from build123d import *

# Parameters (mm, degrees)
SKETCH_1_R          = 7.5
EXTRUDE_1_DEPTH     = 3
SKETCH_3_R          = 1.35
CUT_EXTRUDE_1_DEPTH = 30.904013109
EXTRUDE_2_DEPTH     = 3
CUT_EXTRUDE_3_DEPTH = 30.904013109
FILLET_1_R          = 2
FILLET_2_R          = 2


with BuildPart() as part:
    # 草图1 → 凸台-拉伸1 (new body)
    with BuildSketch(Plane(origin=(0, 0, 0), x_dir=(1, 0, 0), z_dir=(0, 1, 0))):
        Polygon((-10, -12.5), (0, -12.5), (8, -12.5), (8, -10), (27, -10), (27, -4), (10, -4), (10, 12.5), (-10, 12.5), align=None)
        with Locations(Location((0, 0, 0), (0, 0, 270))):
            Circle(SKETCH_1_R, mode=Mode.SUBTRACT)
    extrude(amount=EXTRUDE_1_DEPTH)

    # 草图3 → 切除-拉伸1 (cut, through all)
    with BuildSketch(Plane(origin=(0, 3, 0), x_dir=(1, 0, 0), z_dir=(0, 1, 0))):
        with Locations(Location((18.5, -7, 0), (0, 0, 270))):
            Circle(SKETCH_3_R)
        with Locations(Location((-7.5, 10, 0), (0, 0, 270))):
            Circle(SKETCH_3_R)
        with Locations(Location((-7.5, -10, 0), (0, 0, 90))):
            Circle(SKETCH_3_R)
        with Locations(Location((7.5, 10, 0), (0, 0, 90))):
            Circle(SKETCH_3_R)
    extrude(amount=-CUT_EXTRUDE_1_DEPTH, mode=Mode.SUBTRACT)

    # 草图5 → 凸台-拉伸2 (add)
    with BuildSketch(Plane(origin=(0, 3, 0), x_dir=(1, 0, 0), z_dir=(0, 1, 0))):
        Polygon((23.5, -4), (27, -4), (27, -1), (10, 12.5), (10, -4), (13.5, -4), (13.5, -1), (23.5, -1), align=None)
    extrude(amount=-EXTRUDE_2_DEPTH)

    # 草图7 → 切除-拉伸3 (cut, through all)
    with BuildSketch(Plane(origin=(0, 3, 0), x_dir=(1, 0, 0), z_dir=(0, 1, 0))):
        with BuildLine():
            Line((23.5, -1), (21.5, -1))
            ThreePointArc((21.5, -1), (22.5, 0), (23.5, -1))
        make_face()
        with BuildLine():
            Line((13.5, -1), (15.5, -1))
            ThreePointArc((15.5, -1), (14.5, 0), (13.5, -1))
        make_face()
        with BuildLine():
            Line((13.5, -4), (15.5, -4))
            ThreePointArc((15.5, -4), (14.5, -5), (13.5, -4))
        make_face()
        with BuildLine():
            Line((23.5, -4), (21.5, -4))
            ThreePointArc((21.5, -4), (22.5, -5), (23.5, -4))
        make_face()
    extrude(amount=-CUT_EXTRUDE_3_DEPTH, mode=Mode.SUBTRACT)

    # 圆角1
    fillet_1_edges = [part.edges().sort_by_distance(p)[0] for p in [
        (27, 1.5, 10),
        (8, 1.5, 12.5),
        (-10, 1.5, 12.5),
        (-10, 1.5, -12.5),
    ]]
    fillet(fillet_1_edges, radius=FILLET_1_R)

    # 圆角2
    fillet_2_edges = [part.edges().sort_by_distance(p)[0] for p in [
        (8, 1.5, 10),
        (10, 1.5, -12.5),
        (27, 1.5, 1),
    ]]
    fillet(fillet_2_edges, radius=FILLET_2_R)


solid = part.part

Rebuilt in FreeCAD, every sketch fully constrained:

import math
import FreeCAD as App
import Part
import Sketcher


def edges_at(feature, points):
    """Names of the edges that pass closest to the given points."""
    edges = feature.Shape.Edges
    near = lambda p: min(range(len(edges)), key=lambda i: edges[i].distToShape(Part.Vertex(*p))[0])
    return sorted({f"Edge{near(p) + 1}" for p in points})


def add_polygon(sketch, points):
    """Adds a closed chain of lines whose ends are joined by coincident constraints."""
    first, n = sketch.GeometryCount, len(points)
    for a, b in zip(points, points[1:] + points[:1]):
        sketch.addGeometry(Part.LineSegment(App.Vector(*a, 0), App.Vector(*b, 0)), False)
    for i in range(n):
        sketch.addConstraint(Sketcher.Constraint("Coincident", first + i, 2, first + (i + 1) % n, 1))

doc = App.newDocument("Part")
body = doc.addObject("PartDesign::Body", "Body")

# Sketch on XZ plane
sketch1 = body.newObject("Sketcher::SketchObject", "Sketch")
sketch1.AttachmentSupport = (doc.getObject("XZ_Plane"), [""])
sketch1.MapMode = "FlatFace"
add_polygon(sketch1, [(-10, 12.5), (8, 12.5), (8, 10), (27, 10), (27, 4), (10, 4), (10, -12.5), (-10, -12.5)])  # lines 0-7
sketch1.addGeometry(Part.Circle(App.Vector(0, 0, 0), App.Vector(0, 0, 1), 7.5), False)  # 8
sketch1.addConstraint(Sketcher.Constraint("Horizontal", 0))
sketch1.addConstraint(Sketcher.Constraint("Vertical", 1))
sketch1.addConstraint(Sketcher.Constraint("Horizontal", 2))
sketch1.addConstraint(Sketcher.Constraint("Vertical", 3))
sketch1.addConstraint(Sketcher.Constraint("Horizontal", 4))
sketch1.addConstraint(Sketcher.Constraint("Vertical", 5))
sketch1.addConstraint(Sketcher.Constraint("Horizontal", 6))
sketch1.addConstraint(Sketcher.Constraint("Vertical", 7))
sketch1.addConstraint(Sketcher.Constraint("Coincident", 8, 3, -1, 1))
sketch1.addConstraint(Sketcher.Constraint("Symmetric", 5, 2, 7, 2, -1, 1))
sketch1.addConstraint(Sketcher.Constraint("Diameter", 8, 15.0))
sketch1.addConstraint(Sketcher.Constraint("DistanceX", 0, 1, 0, 2, 18.0))
sketch1.addConstraint(Sketcher.Constraint("DistanceX", 2, 1, 2, 2, 19.0))
sketch1.addConstraint(Sketcher.Constraint("DistanceX", 4, 2, 4, 1, 17.0))
sketch1.addConstraint(Sketcher.Constraint("DistanceY", 3, 2, 3, 1, 6.0))
sketch1.addConstraint(Sketcher.Constraint("DistanceY", 7, 1, 7, 2, 25.0))
sketch1.addConstraint(Sketcher.Constraint("DistanceY", 1, 2, 1, 1, 2.5))
pad1 = body.newObject("PartDesign::Pad", "Pad")
pad1.Profile = sketch1
pad1.Length = 3
pad1.Reversed = True

# Sketch on XZ plane
sketch2 = body.newObject("Sketcher::SketchObject", "Sketch001")
sketch2.AttachmentSupport = (doc.getObject("XZ_Plane"), [""])
sketch2.MapMode = "FlatFace"
sketch2.AttachmentOffset = App.Placement(App.Vector(0, 0, -3), App.Rotation())
sketch2.addGeometry(Part.Circle(App.Vector(18.5, 7, 0), App.Vector(0, 0, 1), 1.4), False)
sketch2.addGeometry(Part.Circle(App.Vector(-7.5, -10, 0), App.Vector(0, 0, 1), 1.4), False)
sketch2.addGeometry(Part.Circle(App.Vector(-7.5, 10, 0), App.Vector(0, 0, 1), 1.4), False)
sketch2.addGeometry(Part.Circle(App.Vector(7.5, -10, 0), App.Vector(0, 0, 1), 1.4), False)
sketch2.addConstraint(Sketcher.Constraint("Equal", 0, 1))
sketch2.addConstraint(Sketcher.Constraint("Equal", 1, 2))
sketch2.addConstraint(Sketcher.Constraint("Equal", 2, 3))
sketch2.addConstraint(Sketcher.Constraint("Symmetric", 2, 3, 3, 3, -1, 1))
sketch2.addConstraint(Sketcher.Constraint("Symmetric", 1, 3, 3, 3, -2))
sketch2.addConstraint(Sketcher.Constraint("Diameter", 0, 2.7))
sketch2.addConstraint(Sketcher.Constraint("DistanceY", -1, 1, 0, 3, 7.0))
sketch2.addConstraint(Sketcher.Constraint("DistanceY", 1, 3, -1, 1, 10.0))
sketch2.addConstraint(Sketcher.Constraint("DistanceX", 1, 3, 0, 3, 26.0))
sketch2.addConstraint(Sketcher.Constraint("DistanceX", 1, 3, 3, 3, 15.0))
pocket1 = body.newObject("PartDesign::Pocket", "Pocket")
pocket1.Profile = sketch2
pocket1.Type = "ThroughAll"
pocket1.Reversed = True

# Sketch on XZ plane
sketch3 = body.newObject("Sketcher::SketchObject", "Sketch002")
sketch3.AttachmentSupport = (doc.getObject("XZ_Plane"), [""])
sketch3.MapMode = "FlatFace"
sketch3.AttachmentOffset = App.Placement(App.Vector(0, 0, -3), App.Rotation())
add_polygon(sketch3, [(23.5, 4), (27, 4), (27, 1), (10, -12.5), (10, 4), (13.5, 4), (13.5, 1), (23.5, 1)])  # lines 0-7
sketch3.addConstraint(Sketcher.Constraint("Horizontal", 0))
sketch3.addConstraint(Sketcher.Constraint("Vertical", 1))
sketch3.addConstraint(Sketcher.Constraint("Vertical", 3))
sketch3.addConstraint(Sketcher.Constraint("Horizontal", 4))
sketch3.addConstraint(Sketcher.Constraint("Vertical", 5))
sketch3.addConstraint(Sketcher.Constraint("Horizontal", 6))
sketch3.addConstraint(Sketcher.Constraint("Vertical", 7))
sketch3.addConstraint(Sketcher.Constraint("Horizontal", 0, 2, 3, 2))
sketch3.addConstraint(Sketcher.Constraint("Horizontal", 1, 2, 5, 2))
sketch3.addConstraint(Sketcher.Constraint("Equal", 0, 4))
sketch3.addConstraint(Sketcher.Constraint("DistanceX", 6, 1, 6, 2, 10.0))
sketch3.addConstraint(Sketcher.Constraint("DistanceY", 1, 2, 1, 1, 3.0))
sketch3.addConstraint(Sketcher.Constraint("DistanceX", 0, 1, 0, 2, 3.5))
sketch3.addConstraint(Sketcher.Constraint("DistanceY", 3, 1, 3, 2, 16.5))
sketch3.addConstraint(Sketcher.Constraint("DistanceX", -1, 1, 0, 2, 27.0))
sketch3.addConstraint(Sketcher.Constraint("DistanceY", -1, 1, 0, 2, 4.0))
pad2 = body.newObject("PartDesign::Pad", "Pad001")
pad2.Profile = sketch3
pad2.Length = 3

# Sketch on XZ plane
sketch4 = body.newObject("Sketcher::SketchObject", "Sketch003")
sketch4.AttachmentSupport = (doc.getObject("XZ_Plane"), [""])
sketch4.MapMode = "FlatFace"
sketch4.AttachmentOffset = App.Placement(App.Vector(0, 0, -3), App.Rotation())
sketch4.addGeometry(Part.LineSegment(App.Vector(21.5, 1, 0), App.Vector(23.5, 1, 0)), False)
sketch4.addGeometry(Part.ArcOfCircle(Part.Circle(App.Vector(22.5, 1, 0), App.Vector(0, 0, 1), 1), math.radians(180), math.radians(360)), False)
sketch4.addGeometry(Part.LineSegment(App.Vector(13.5, 1, 0), App.Vector(15.5, 1, 0)), False)
sketch4.addGeometry(Part.ArcOfCircle(Part.Circle(App.Vector(14.5, 1, 0), App.Vector(0, 0, 1), 1), math.radians(180), math.radians(360)), False)
sketch4.addGeometry(Part.LineSegment(App.Vector(15.5, 4, 0), App.Vector(13.5, 4, 0)), False)
sketch4.addGeometry(Part.ArcOfCircle(Part.Circle(App.Vector(14.5, 4, 0), App.Vector(0, 0, 1), 1), math.radians(0), math.radians(180)), False)
sketch4.addGeometry(Part.LineSegment(App.Vector(23.5, 4, 0), App.Vector(21.5, 4, 0)), False)
sketch4.addGeometry(Part.ArcOfCircle(Part.Circle(App.Vector(22.5, 4, 0), App.Vector(0, 0, 1), 1), math.radians(0), math.radians(180)), False)
sketch4.addConstraint(Sketcher.Constraint("Coincident", 0, 1, 1, 1))
sketch4.addConstraint(Sketcher.Constraint("Coincident", 1, 2, 0, 2))
sketch4.addConstraint(Sketcher.Constraint("Coincident", 2, 1, 3, 1))
sketch4.addConstraint(Sketcher.Constraint("Coincident", 3, 2, 2, 2))
sketch4.addConstraint(Sketcher.Constraint("Coincident", 4, 1, 5, 1))
sketch4.addConstraint(Sketcher.Constraint("Coincident", 5, 2, 4, 2))
sketch4.addConstraint(Sketcher.Constraint("Coincident", 6, 1, 7, 1))
sketch4.addConstraint(Sketcher.Constraint("Coincident", 7, 2, 6, 2))
sketch4.addConstraint(Sketcher.Constraint("Horizontal", 0))
sketch4.addConstraint(Sketcher.Constraint("Horizontal", 2))
sketch4.addConstraint(Sketcher.Constraint("Horizontal", 4))
sketch4.addConstraint(Sketcher.Constraint("Horizontal", 6))
sketch4.addConstraint(Sketcher.Constraint("Equal", 1, 3))
sketch4.addConstraint(Sketcher.Constraint("Equal", 3, 5))
sketch4.addConstraint(Sketcher.Constraint("Equal", 5, 7))
sketch4.addConstraint(Sketcher.Constraint("Horizontal", 1, 3, 3, 3))
sketch4.addConstraint(Sketcher.Constraint("Horizontal", 5, 3, 7, 3))
sketch4.addConstraint(Sketcher.Constraint("Horizontal", 3, 3, 0, 1))
sketch4.addConstraint(Sketcher.Constraint("Horizontal", 1, 2, 2, 1))
sketch4.addConstraint(Sketcher.Constraint("Horizontal", 7, 3, 4, 1))
sketch4.addConstraint(Sketcher.Constraint("Horizontal", 5, 2, 6, 1))
sketch4.addConstraint(Sketcher.Constraint("Vertical", 3, 3, 5, 3))
sketch4.addConstraint(Sketcher.Constraint("Vertical", 1, 3, 7, 3))
sketch4.addConstraint(Sketcher.Constraint("Radius", 1, 1.0))
sketch4.addConstraint(Sketcher.Constraint("DistanceY", -1, 1, 1, 3, 1.0))
sketch4.addConstraint(Sketcher.Constraint("DistanceY", -1, 1, 5, 3, 4.0))
sketch4.addConstraint(Sketcher.Constraint("DistanceX", 3, 3, 1, 3, 8.0))
sketch4.addConstraint(Sketcher.Constraint("DistanceX", -1, 1, 1, 3, 22.5))
pocket2 = body.newObject("PartDesign::Pocket", "Pocket001")
pocket2.Profile = sketch4
pocket2.Type = "ThroughAll"
pocket2.Reversed = True
doc.recompute()

fillet = body.newObject("PartDesign::Fillet", "Fillet")
fillet.Base = (pocket2, edges_at(pocket2, [
    (27, 1.5, 10),
    (8, 1.5, 12.5),
    (-10, 1.5, 12.5),
    (-10, 1.5, -12.5),
]))
fillet.Radius = 2
doc.recompute()

fillet2 = body.newObject("PartDesign::Fillet", "Fillet001")
fillet2.Base = (fillet, edges_at(fillet, [(8, 1.5, 10), (10, 1.5, -12.5), (27, 1.5, 1)]))
fillet2.Radius = 2

doc.recompute()
